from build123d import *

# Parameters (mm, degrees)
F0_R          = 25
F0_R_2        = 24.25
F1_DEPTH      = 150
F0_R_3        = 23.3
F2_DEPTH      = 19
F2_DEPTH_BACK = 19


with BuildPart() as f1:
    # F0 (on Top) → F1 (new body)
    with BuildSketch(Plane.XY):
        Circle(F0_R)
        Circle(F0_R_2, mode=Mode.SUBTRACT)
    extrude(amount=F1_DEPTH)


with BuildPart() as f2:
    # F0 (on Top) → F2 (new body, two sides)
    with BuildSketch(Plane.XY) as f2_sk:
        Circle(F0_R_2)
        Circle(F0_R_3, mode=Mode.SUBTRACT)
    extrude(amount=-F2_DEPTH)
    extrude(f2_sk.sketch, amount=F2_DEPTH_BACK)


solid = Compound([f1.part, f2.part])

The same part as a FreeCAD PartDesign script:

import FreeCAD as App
import Part
import Sketcher
Q = App.Units.Quantity

doc = App.newDocument("Part")
body = doc.addObject("PartDesign::Body", "Body")

sketch1 = doc.addObject("Sketcher::SketchObject", "Sketch")
body.addObject(sketch1)
sketch1.AttachmentSupport = (doc.XY_Plane, [""])
sketch1.MapMode = "FlatFace"
sketch1.addGeometry(Part.Circle(App.Vector(0, 0, 0), App.Vector(0, 0, 1), 25), False)
sketch1.addGeometry(Part.Circle(App.Vector(0, 0, 0), App.Vector(0, 0, 1), 24), False)
sketch1.addConstraint(Sketcher.Constraint("Coincident", 0, 3, -1, 1))
sketch1.addConstraint(Sketcher.Constraint("Coincident", 1, 3, -1, 1))
sketch1.addConstraint(Sketcher.Constraint("Diameter", 0, Q("50 mm")))
sketch1.addConstraint(Sketcher.Constraint("Diameter", 1, Q("48.5 mm")))
pad1 = doc.addObject("PartDesign::Pad", "Pad")
body.addObject(pad1)
pad1.Profile = sketch1
pad1.Length = 150
body2 = doc.addObject("PartDesign::Body", "Body001")

sketch2 = doc.addObject("Sketcher::SketchObject", "Sketch001")
body2.addObject(sketch2)
sketch2.AttachmentSupport = (doc.getObject("XY_Plane001"), [""])
sketch2.MapMode = "FlatFace"
sketch2.addGeometry(Part.Circle(App.Vector(0, 0, 0), App.Vector(0, 0, 1), 24), False)
sketch2.addGeometry(Part.Circle(App.Vector(0, 0, 0), App.Vector(0, 0, 1), 23), False)
sketch2.addConstraint(Sketcher.Constraint("Coincident", 0, 3, -1, 1))
sketch2.addConstraint(Sketcher.Constraint("Coincident", 1, 3, -1, 1))
sketch2.addConstraint(Sketcher.Constraint("Diameter", 0, Q("48.5 mm")))
sketch2.addConstraint(Sketcher.Constraint("Diameter", 1, Q("46.6 mm")))
pad2 = doc.addObject("PartDesign::Pad", "Pad001")
body2.addObject(pad2)
pad2.Profile = sketch2
pad2.Type = "TwoLengths"
pad2.Length = 19
pad2.Length2 = 19
pad2.Reversed = True

doc.recompute()
